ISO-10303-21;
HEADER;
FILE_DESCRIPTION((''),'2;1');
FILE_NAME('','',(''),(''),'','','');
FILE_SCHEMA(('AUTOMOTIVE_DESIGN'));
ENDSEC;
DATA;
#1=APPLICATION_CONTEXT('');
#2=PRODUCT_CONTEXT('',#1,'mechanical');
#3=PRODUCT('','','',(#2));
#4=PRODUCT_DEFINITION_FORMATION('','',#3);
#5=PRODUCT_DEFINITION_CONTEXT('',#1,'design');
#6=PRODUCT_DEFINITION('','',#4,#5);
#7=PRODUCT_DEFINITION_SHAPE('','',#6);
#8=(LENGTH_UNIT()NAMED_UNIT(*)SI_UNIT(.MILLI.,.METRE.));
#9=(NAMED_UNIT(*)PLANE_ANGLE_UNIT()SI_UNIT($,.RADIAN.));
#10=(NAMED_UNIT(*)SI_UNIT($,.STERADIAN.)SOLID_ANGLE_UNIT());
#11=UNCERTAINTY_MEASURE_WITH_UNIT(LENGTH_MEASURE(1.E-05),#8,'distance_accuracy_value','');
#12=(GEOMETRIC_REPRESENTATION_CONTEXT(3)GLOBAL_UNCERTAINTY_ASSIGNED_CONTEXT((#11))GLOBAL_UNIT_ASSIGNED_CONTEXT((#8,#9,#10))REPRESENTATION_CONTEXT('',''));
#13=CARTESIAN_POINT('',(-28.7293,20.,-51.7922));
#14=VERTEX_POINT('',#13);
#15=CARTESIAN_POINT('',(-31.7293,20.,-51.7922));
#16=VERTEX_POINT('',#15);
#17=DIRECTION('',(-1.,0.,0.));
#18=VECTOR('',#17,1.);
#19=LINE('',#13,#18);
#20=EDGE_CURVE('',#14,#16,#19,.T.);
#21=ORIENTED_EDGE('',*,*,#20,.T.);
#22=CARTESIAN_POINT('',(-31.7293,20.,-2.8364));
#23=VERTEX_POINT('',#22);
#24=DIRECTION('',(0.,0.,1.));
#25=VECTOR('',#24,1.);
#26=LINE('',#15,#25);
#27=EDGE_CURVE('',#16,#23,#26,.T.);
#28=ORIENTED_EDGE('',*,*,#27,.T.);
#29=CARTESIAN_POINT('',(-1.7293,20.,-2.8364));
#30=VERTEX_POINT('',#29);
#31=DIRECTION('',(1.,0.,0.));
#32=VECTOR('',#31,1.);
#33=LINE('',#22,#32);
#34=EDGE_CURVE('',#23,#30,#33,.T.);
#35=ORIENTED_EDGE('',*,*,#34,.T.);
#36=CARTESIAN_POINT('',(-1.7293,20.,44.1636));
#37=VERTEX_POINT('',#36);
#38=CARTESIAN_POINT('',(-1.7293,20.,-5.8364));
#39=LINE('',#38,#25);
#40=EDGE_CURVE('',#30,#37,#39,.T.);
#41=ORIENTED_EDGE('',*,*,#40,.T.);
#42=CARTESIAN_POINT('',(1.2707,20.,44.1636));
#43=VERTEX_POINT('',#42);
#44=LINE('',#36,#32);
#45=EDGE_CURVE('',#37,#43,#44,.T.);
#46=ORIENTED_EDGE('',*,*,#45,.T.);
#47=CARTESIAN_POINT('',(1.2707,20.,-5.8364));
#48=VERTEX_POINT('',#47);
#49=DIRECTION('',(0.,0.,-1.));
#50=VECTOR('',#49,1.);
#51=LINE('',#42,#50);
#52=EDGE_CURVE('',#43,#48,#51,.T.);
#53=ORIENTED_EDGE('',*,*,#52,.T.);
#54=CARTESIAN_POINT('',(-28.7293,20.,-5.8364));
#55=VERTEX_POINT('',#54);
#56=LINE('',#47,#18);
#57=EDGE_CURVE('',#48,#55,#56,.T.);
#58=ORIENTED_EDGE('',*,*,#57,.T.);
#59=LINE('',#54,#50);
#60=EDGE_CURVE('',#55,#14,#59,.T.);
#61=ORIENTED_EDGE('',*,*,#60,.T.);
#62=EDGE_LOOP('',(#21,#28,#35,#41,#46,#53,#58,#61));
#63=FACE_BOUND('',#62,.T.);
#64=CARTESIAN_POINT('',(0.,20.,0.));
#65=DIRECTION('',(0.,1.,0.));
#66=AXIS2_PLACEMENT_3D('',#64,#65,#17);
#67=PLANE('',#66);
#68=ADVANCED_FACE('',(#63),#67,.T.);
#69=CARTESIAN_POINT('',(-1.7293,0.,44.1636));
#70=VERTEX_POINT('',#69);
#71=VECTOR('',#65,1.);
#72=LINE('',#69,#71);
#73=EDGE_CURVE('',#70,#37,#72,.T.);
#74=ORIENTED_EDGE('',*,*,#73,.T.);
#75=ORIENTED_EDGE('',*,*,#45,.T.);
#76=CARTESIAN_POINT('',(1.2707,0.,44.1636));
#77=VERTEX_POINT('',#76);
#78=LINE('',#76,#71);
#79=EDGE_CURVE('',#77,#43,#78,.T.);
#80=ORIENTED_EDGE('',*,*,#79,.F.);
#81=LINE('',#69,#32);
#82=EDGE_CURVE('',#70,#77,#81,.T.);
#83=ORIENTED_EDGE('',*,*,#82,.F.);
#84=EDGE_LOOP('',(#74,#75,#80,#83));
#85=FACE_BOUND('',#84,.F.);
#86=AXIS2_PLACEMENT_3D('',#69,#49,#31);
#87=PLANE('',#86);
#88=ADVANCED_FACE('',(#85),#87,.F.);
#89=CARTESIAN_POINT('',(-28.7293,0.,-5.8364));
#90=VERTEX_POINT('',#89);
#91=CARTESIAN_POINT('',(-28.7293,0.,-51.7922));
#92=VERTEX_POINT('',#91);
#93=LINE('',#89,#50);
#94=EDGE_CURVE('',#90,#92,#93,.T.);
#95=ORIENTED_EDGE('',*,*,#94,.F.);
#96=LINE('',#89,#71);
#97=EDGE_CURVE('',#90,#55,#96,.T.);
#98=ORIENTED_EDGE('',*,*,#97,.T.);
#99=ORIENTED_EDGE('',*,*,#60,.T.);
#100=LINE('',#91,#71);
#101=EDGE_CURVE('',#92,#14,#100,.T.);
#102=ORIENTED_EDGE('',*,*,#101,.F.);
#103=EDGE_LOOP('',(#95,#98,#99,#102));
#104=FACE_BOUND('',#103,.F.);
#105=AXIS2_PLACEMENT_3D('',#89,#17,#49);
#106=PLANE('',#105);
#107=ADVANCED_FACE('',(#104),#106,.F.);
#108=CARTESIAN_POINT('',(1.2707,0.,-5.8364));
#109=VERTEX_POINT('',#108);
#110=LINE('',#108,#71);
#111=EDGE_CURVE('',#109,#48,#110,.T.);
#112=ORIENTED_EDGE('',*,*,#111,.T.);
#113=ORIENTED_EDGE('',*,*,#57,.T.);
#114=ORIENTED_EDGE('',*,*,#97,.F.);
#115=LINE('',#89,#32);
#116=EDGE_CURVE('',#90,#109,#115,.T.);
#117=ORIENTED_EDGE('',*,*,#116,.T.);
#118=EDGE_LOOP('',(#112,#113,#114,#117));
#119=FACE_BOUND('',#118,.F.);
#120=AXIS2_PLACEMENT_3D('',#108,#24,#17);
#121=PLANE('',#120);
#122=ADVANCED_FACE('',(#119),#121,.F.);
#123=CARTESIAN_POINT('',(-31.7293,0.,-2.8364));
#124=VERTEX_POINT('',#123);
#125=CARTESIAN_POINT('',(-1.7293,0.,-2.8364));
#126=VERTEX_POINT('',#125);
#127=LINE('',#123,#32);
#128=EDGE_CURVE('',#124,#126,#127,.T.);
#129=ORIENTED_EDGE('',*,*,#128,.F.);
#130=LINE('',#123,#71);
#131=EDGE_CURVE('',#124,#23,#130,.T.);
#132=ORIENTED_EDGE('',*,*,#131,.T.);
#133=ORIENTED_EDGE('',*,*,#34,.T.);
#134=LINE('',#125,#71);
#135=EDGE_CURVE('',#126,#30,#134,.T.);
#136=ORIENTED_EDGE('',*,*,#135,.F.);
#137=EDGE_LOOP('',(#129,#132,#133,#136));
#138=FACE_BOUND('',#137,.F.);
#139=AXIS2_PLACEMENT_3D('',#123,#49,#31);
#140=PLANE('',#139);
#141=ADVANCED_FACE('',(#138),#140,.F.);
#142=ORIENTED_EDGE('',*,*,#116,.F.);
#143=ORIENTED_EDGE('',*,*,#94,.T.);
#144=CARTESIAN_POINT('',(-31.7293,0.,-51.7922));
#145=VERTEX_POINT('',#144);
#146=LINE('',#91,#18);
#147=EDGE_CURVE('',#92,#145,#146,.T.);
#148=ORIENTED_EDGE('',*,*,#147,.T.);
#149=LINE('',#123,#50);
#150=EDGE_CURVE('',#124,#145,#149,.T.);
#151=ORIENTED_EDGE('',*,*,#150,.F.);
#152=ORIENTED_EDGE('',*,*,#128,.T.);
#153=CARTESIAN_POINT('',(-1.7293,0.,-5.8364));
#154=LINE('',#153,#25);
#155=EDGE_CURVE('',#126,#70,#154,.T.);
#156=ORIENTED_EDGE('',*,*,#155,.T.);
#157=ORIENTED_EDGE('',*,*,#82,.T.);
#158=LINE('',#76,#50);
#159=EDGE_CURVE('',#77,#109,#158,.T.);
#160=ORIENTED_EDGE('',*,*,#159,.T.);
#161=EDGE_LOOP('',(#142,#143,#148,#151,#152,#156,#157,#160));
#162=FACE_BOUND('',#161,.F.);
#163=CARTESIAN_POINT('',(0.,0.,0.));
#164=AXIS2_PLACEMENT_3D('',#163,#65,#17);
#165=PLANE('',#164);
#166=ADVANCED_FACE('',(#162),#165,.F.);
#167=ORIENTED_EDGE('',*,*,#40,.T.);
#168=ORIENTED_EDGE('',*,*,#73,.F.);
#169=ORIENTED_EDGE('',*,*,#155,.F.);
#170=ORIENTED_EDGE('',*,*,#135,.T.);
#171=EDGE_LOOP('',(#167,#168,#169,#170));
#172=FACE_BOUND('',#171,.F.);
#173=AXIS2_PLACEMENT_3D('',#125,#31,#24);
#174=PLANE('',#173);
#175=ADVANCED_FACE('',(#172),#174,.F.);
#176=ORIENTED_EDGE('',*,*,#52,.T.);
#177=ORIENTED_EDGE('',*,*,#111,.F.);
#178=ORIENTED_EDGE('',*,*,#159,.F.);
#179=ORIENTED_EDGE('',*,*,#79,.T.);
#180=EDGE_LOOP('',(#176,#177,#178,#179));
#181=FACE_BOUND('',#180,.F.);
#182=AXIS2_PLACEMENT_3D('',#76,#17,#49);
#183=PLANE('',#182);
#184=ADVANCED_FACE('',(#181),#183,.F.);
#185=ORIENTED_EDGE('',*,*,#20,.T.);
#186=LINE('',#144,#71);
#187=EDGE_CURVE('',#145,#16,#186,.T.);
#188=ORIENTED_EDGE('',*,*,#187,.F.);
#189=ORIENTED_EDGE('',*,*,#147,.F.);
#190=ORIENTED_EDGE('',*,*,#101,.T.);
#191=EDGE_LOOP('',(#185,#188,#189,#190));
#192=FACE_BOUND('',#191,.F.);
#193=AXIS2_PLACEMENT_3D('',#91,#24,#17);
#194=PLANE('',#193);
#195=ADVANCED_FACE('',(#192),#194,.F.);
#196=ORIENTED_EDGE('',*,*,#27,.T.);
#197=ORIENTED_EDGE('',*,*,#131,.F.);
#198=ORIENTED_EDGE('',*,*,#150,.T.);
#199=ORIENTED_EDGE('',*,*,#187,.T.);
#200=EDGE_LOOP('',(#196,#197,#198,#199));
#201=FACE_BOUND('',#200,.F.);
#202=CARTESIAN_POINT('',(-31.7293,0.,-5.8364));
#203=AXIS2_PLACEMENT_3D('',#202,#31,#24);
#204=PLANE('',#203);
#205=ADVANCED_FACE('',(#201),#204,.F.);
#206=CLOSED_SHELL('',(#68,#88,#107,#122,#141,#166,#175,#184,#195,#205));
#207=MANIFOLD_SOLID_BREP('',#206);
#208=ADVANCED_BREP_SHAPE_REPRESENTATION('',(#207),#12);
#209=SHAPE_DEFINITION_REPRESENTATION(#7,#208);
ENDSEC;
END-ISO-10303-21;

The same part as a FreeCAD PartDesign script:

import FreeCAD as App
import Part
import Sketcher
Q = App.Units.Quantity


def add_polygon(sketch, points):
    """Adds a closed chain of lines whose ends are joined by coincident constraints."""
    first, n = sketch.GeometryCount, len(points)
    for a, b in zip(points, points[1:] + points[:1]):
        sketch.addGeometry(Part.LineSegment(App.Vector(*a, 0), App.Vector(*b, 0)), False)
    for i in range(n):
        sketch.addConstraint(Sketcher.Constraint("Coincident", first + i, 2, first + (i + 1) % n, 1))

doc = App.newDocument("Part")
body = doc.addObject("PartDesign::Body", "Body")

# Sketch on XZ plane
sketch1 = body.newObject("Sketcher::SketchObject", "Sketch")
sketch1.AttachmentSupport = (doc.getObject("XZ_Plane"), [""])
sketch1.MapMode = "FlatFace"
add_polygon(sketch1, [(-1.7, -2.8), (-1.7, 44.2), (1.3, 44.2), (1.3, -5.8), (-28.7, -5.8), (-28.7, -51.8), (-31.7, -51.8), (-31.7, -2.8)])  # lines 0-7
sketch1.addConstraint([
    Sketcher.Constraint("Vertical", 0),
    Sketcher.Constraint("Horizontal", 1),
    Sketcher.Constraint("Vertical", 2),
    Sketcher.Constraint("Horizontal", 3),
    Sketcher.Constraint("Vertical", 4),
    Sketcher.Constraint("Horizontal", 5),
    Sketcher.Constraint("Vertical", 6),
    Sketcher.Constraint("Horizontal", 7),
    Sketcher.Constraint("Equal", 1, 5),
    Sketcher.Constraint("DistanceX", 1, 1, 1, 2, Q("3 mm")),
    Sketcher.Constraint("DistanceX", 3, 2, 3, 1, Q("30 mm")),
    Sketcher.Constraint("DistanceY", 2, 2, 2, 1, Q("50 mm")),
    Sketcher.Constraint("DistanceY", 3, 2, 6, 2, Q("3 mm")),
    Sketcher.Constraint("DistanceY", 4, 2, 4, 1, Q("45.9558 mm")),
    Sketcher.Constraint("DistanceX", 0, 2, -1, 1, Q("1.7293 mm")),
    Sketcher.Constraint("DistanceY", -1, 1, 0, 2, Q("44.1636 mm")),
])
pad1 = body.newObject("PartDesign::Pad", "Pad")
pad1.Profile = sketch1
pad1.Length = 20
pad1.Reversed = True

doc.recompute()
